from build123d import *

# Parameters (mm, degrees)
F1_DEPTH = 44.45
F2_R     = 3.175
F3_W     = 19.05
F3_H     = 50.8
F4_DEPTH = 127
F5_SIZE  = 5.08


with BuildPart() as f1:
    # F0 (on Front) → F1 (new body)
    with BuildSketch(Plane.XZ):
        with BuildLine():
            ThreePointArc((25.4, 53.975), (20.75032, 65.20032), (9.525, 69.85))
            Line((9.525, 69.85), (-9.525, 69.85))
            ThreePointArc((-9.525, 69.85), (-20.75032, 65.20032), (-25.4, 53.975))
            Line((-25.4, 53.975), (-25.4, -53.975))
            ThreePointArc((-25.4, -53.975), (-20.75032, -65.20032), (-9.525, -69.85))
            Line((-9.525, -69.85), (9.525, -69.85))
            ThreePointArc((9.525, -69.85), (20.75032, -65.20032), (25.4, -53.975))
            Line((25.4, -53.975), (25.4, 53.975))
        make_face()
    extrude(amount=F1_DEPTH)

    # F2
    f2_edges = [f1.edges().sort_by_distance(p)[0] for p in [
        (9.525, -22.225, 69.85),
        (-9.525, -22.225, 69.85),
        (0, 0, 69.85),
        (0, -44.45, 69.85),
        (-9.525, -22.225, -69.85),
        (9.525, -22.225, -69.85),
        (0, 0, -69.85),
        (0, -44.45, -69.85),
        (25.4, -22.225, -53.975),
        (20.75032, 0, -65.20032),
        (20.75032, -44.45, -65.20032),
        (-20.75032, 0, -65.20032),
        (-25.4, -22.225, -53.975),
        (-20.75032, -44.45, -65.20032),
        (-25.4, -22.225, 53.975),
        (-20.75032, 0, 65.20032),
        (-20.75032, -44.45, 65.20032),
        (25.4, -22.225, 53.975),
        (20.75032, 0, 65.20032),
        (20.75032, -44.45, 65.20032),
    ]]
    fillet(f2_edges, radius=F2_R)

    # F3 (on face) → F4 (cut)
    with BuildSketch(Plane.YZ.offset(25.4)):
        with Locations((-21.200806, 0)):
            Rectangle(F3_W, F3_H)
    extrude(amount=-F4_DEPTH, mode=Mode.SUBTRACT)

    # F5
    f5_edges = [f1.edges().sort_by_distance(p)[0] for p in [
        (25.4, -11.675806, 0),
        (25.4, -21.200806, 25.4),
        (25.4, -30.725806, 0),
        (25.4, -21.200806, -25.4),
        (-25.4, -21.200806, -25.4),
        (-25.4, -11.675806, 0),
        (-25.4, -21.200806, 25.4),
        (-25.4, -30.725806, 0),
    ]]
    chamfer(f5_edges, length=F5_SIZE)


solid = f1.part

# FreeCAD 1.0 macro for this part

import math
import FreeCAD as App
import Part
import Sketcher
from FreeCAD import Vector
Q = App.Units.Quantity


def edges_at(feature, points):
    """Names of the edges that pass closest to the given points."""
    edges = feature.Shape.Edges
    near = lambda p: min(range(len(edges)), key=lambda i: edges[i].distToShape(Part.Vertex(*p))[0])
    return sorted({f"Edge{near(p) + 1}" for p in points})

doc = App.newDocument("Part")
body = doc.addObject("PartDesign::Body", "Body")

sketch1 = body.newObject("Sketcher::SketchObject", "Sketch")
sketch1.AttachmentSupport = (doc.getObject("XZ_Plane"), [""])
sketch1.MapMode = "FlatFace"
sketch1.addGeometry(Part.ArcOfCircle(Part.Circle(Vector(10, 54, 0), Vector(0, 0, 1), 16), math.radians(0), math.radians(90)), False)
sketch1.addGeometry(Part.LineSegment(Vector(10, 70, 0), Vector(-10, 70, 0)), False)
sketch1.addGeometry(Part.ArcOfCircle(Part.Circle(Vector(-10, 54, 0), Vector(0, 0, 1), 16), math.radians(90), math.radians(180)), False)
sketch1.addGeometry(Part.LineSegment(Vector(-25, 54, 0), Vector(-25, -54, 0)), False)
sketch1.addGeometry(Part.ArcOfCircle(Part.Circle(Vector(-10, -54, 0), Vector(0, 0, 1), 16), math.radians(-180), math.radians(-90)), False)
sketch1.addGeometry(Part.LineSegment(Vector(-10, -70, 0), Vector(10, -70, 0)), False)
sketch1.addGeometry(Part.ArcOfCircle(Part.Circle(Vector(10, -54, 0), Vector(0, 0, 1), 16), math.radians(-90), math.radians(0)), False)
sketch1.addGeometry(Part.LineSegment(Vector(25, -54, 0), Vector(25, 54, 0)), False)
sketch1.addConstraint(Sketcher.Constraint("Tangent", 0, 2, 1, 1))
sketch1.addConstraint(Sketcher.Constraint("Tangent", 1, 2, 2, 1))
sketch1.addConstraint(Sketcher.Constraint("Tangent", 2, 2, 3, 1))
sketch1.addConstraint(Sketcher.Constraint("Tangent", 3, 2, 4, 1))
sketch1.addConstraint(Sketcher.Constraint("Tangent", 4, 2, 5, 1))
sketch1.addConstraint(Sketcher.Constraint("Tangent", 5, 2, 6, 1))
sketch1.addConstraint(Sketcher.Constraint("Tangent", 6, 2, 7, 1))
sketch1.addConstraint(Sketcher.Constraint("Tangent", 7, 2, 0, 1))
sketch1.addConstraint(Sketcher.Constraint("Horizontal", 1))
sketch1.addConstraint(Sketcher.Constraint("Vertical", 3))
sketch1.addConstraint(Sketcher.Constraint("Horizontal", 5))
sketch1.addConstraint(Sketcher.Constraint("Vertical", 7))
sketch1.addConstraint(Sketcher.Constraint("Equal", 0, 2))
sketch1.addConstraint(Sketcher.Constraint("Equal", 2, 4))
sketch1.addConstraint(Sketcher.Constraint("Equal", 4, 6))
sketch1.addConstraint(Sketcher.Constraint("Symmetric", 0, 3, 4, 3, -1, 1))
sketch1.addConstraint(Sketcher.Constraint("DistanceX", 2, 2, -1, 1, Q("1 in")))
sketch1.addConstraint(Sketcher.Constraint("Radius", 0, Q("0.625 in")))
sketch1.addConstraint(Sketcher.Constraint("DistanceY", 3, 2, 3, 1, Q("4.25 in")))
pad1 = body.newObject("PartDesign::Pad", "Pad")
pad1.Profile = sketch1
pad1.Length = Q("1.75 in")
doc.recompute()

fillet = body.newObject("PartDesign::Fillet", "Fillet")
fillet.Base = (pad1, ["Edge1"])
fillet.UseAllEdges = True
fillet.Radius = Q("0.125 in")

sketch2 = body.newObject("Sketcher::SketchObject", "Sketch001")
sketch2.AttachmentSupport = (doc.getObject("YZ_Plane"), [""])
sketch2.MapMode = "FlatFace"
sketch2.AttachmentOffset = App.Placement(Vector(0, 0, 1 * 25.4), App.Rotation())
sketch2.addGeometry(Part.LineSegment(Vector(-31, 25, 0), Vector(-31, -25, 0)), False)
sketch2.addGeometry(Part.LineSegment(Vector(-31, -25, 0), Vector(-12, -25, 0)), False)
sketch2.addGeometry(Part.LineSegment(Vector(-12, -25, 0), Vector(-12, 25, 0)), False)
sketch2.addGeometry(Part.LineSegment(Vector(-12, 25, 0), Vector(-31, 25, 0)), False)
sketch2.addConstraint(Sketcher.Constraint("Coincident", 0, 2, 1, 1))
sketch2.addConstraint(Sketcher.Constraint("Coincident", 1, 2, 2, 1))
sketch2.addConstraint(Sketcher.Constraint("Coincident", 2, 2, 3, 1))
sketch2.addConstraint(Sketcher.Constraint("Coincident", 3, 2, 0, 1))
sketch2.addConstraint(Sketcher.Constraint("Vertical", 0))
sketch2.addConstraint(Sketcher.Constraint("Horizontal", 1))
sketch2.addConstraint(Sketcher.Constraint("Vertical", 2))
sketch2.addConstraint(Sketcher.Constraint("Horizontal", 3))
sketch2.addConstraint(Sketcher.Constraint("DistanceY", 0, 2, 0, 1, Q("2 in")))
sketch2.addConstraint(Sketcher.Constraint("DistanceY", 0, 2, -1, 1, Q("1 in")))
sketch2.addConstraint(Sketcher.Constraint("DistanceX", 1, 1, 1, 2, Q("0.75 in")))
sketch2.addConstraint(Sketcher.Constraint("DistanceX", 0, 2, -1, 1, 30.725806))
pocket1 = body.newObject("PartDesign::Pocket", "Pocket")
pocket1.Profile = sketch2
pocket1.Length = Q("5 in")
doc.recompute()

chamfer = body.newObject("PartDesign::Chamfer", "Chamfer")
chamfer.Base = (pocket1, edges_at(pocket1, [
    (25.4, -11.676, 0),
    (25.4, -21.201, 25.4),
    (25.4, -30.726, 0),
    (25.4, -21.201, -25.4),
    (-25.4, -21.201, -25.4),
    (-25.4, -11.676, 0),
    (-25.4, -21.201, 25.4),
    (-25.4, -30.726, 0),
]))
chamfer.Size = Q("0.2 in")

doc.recompute()
